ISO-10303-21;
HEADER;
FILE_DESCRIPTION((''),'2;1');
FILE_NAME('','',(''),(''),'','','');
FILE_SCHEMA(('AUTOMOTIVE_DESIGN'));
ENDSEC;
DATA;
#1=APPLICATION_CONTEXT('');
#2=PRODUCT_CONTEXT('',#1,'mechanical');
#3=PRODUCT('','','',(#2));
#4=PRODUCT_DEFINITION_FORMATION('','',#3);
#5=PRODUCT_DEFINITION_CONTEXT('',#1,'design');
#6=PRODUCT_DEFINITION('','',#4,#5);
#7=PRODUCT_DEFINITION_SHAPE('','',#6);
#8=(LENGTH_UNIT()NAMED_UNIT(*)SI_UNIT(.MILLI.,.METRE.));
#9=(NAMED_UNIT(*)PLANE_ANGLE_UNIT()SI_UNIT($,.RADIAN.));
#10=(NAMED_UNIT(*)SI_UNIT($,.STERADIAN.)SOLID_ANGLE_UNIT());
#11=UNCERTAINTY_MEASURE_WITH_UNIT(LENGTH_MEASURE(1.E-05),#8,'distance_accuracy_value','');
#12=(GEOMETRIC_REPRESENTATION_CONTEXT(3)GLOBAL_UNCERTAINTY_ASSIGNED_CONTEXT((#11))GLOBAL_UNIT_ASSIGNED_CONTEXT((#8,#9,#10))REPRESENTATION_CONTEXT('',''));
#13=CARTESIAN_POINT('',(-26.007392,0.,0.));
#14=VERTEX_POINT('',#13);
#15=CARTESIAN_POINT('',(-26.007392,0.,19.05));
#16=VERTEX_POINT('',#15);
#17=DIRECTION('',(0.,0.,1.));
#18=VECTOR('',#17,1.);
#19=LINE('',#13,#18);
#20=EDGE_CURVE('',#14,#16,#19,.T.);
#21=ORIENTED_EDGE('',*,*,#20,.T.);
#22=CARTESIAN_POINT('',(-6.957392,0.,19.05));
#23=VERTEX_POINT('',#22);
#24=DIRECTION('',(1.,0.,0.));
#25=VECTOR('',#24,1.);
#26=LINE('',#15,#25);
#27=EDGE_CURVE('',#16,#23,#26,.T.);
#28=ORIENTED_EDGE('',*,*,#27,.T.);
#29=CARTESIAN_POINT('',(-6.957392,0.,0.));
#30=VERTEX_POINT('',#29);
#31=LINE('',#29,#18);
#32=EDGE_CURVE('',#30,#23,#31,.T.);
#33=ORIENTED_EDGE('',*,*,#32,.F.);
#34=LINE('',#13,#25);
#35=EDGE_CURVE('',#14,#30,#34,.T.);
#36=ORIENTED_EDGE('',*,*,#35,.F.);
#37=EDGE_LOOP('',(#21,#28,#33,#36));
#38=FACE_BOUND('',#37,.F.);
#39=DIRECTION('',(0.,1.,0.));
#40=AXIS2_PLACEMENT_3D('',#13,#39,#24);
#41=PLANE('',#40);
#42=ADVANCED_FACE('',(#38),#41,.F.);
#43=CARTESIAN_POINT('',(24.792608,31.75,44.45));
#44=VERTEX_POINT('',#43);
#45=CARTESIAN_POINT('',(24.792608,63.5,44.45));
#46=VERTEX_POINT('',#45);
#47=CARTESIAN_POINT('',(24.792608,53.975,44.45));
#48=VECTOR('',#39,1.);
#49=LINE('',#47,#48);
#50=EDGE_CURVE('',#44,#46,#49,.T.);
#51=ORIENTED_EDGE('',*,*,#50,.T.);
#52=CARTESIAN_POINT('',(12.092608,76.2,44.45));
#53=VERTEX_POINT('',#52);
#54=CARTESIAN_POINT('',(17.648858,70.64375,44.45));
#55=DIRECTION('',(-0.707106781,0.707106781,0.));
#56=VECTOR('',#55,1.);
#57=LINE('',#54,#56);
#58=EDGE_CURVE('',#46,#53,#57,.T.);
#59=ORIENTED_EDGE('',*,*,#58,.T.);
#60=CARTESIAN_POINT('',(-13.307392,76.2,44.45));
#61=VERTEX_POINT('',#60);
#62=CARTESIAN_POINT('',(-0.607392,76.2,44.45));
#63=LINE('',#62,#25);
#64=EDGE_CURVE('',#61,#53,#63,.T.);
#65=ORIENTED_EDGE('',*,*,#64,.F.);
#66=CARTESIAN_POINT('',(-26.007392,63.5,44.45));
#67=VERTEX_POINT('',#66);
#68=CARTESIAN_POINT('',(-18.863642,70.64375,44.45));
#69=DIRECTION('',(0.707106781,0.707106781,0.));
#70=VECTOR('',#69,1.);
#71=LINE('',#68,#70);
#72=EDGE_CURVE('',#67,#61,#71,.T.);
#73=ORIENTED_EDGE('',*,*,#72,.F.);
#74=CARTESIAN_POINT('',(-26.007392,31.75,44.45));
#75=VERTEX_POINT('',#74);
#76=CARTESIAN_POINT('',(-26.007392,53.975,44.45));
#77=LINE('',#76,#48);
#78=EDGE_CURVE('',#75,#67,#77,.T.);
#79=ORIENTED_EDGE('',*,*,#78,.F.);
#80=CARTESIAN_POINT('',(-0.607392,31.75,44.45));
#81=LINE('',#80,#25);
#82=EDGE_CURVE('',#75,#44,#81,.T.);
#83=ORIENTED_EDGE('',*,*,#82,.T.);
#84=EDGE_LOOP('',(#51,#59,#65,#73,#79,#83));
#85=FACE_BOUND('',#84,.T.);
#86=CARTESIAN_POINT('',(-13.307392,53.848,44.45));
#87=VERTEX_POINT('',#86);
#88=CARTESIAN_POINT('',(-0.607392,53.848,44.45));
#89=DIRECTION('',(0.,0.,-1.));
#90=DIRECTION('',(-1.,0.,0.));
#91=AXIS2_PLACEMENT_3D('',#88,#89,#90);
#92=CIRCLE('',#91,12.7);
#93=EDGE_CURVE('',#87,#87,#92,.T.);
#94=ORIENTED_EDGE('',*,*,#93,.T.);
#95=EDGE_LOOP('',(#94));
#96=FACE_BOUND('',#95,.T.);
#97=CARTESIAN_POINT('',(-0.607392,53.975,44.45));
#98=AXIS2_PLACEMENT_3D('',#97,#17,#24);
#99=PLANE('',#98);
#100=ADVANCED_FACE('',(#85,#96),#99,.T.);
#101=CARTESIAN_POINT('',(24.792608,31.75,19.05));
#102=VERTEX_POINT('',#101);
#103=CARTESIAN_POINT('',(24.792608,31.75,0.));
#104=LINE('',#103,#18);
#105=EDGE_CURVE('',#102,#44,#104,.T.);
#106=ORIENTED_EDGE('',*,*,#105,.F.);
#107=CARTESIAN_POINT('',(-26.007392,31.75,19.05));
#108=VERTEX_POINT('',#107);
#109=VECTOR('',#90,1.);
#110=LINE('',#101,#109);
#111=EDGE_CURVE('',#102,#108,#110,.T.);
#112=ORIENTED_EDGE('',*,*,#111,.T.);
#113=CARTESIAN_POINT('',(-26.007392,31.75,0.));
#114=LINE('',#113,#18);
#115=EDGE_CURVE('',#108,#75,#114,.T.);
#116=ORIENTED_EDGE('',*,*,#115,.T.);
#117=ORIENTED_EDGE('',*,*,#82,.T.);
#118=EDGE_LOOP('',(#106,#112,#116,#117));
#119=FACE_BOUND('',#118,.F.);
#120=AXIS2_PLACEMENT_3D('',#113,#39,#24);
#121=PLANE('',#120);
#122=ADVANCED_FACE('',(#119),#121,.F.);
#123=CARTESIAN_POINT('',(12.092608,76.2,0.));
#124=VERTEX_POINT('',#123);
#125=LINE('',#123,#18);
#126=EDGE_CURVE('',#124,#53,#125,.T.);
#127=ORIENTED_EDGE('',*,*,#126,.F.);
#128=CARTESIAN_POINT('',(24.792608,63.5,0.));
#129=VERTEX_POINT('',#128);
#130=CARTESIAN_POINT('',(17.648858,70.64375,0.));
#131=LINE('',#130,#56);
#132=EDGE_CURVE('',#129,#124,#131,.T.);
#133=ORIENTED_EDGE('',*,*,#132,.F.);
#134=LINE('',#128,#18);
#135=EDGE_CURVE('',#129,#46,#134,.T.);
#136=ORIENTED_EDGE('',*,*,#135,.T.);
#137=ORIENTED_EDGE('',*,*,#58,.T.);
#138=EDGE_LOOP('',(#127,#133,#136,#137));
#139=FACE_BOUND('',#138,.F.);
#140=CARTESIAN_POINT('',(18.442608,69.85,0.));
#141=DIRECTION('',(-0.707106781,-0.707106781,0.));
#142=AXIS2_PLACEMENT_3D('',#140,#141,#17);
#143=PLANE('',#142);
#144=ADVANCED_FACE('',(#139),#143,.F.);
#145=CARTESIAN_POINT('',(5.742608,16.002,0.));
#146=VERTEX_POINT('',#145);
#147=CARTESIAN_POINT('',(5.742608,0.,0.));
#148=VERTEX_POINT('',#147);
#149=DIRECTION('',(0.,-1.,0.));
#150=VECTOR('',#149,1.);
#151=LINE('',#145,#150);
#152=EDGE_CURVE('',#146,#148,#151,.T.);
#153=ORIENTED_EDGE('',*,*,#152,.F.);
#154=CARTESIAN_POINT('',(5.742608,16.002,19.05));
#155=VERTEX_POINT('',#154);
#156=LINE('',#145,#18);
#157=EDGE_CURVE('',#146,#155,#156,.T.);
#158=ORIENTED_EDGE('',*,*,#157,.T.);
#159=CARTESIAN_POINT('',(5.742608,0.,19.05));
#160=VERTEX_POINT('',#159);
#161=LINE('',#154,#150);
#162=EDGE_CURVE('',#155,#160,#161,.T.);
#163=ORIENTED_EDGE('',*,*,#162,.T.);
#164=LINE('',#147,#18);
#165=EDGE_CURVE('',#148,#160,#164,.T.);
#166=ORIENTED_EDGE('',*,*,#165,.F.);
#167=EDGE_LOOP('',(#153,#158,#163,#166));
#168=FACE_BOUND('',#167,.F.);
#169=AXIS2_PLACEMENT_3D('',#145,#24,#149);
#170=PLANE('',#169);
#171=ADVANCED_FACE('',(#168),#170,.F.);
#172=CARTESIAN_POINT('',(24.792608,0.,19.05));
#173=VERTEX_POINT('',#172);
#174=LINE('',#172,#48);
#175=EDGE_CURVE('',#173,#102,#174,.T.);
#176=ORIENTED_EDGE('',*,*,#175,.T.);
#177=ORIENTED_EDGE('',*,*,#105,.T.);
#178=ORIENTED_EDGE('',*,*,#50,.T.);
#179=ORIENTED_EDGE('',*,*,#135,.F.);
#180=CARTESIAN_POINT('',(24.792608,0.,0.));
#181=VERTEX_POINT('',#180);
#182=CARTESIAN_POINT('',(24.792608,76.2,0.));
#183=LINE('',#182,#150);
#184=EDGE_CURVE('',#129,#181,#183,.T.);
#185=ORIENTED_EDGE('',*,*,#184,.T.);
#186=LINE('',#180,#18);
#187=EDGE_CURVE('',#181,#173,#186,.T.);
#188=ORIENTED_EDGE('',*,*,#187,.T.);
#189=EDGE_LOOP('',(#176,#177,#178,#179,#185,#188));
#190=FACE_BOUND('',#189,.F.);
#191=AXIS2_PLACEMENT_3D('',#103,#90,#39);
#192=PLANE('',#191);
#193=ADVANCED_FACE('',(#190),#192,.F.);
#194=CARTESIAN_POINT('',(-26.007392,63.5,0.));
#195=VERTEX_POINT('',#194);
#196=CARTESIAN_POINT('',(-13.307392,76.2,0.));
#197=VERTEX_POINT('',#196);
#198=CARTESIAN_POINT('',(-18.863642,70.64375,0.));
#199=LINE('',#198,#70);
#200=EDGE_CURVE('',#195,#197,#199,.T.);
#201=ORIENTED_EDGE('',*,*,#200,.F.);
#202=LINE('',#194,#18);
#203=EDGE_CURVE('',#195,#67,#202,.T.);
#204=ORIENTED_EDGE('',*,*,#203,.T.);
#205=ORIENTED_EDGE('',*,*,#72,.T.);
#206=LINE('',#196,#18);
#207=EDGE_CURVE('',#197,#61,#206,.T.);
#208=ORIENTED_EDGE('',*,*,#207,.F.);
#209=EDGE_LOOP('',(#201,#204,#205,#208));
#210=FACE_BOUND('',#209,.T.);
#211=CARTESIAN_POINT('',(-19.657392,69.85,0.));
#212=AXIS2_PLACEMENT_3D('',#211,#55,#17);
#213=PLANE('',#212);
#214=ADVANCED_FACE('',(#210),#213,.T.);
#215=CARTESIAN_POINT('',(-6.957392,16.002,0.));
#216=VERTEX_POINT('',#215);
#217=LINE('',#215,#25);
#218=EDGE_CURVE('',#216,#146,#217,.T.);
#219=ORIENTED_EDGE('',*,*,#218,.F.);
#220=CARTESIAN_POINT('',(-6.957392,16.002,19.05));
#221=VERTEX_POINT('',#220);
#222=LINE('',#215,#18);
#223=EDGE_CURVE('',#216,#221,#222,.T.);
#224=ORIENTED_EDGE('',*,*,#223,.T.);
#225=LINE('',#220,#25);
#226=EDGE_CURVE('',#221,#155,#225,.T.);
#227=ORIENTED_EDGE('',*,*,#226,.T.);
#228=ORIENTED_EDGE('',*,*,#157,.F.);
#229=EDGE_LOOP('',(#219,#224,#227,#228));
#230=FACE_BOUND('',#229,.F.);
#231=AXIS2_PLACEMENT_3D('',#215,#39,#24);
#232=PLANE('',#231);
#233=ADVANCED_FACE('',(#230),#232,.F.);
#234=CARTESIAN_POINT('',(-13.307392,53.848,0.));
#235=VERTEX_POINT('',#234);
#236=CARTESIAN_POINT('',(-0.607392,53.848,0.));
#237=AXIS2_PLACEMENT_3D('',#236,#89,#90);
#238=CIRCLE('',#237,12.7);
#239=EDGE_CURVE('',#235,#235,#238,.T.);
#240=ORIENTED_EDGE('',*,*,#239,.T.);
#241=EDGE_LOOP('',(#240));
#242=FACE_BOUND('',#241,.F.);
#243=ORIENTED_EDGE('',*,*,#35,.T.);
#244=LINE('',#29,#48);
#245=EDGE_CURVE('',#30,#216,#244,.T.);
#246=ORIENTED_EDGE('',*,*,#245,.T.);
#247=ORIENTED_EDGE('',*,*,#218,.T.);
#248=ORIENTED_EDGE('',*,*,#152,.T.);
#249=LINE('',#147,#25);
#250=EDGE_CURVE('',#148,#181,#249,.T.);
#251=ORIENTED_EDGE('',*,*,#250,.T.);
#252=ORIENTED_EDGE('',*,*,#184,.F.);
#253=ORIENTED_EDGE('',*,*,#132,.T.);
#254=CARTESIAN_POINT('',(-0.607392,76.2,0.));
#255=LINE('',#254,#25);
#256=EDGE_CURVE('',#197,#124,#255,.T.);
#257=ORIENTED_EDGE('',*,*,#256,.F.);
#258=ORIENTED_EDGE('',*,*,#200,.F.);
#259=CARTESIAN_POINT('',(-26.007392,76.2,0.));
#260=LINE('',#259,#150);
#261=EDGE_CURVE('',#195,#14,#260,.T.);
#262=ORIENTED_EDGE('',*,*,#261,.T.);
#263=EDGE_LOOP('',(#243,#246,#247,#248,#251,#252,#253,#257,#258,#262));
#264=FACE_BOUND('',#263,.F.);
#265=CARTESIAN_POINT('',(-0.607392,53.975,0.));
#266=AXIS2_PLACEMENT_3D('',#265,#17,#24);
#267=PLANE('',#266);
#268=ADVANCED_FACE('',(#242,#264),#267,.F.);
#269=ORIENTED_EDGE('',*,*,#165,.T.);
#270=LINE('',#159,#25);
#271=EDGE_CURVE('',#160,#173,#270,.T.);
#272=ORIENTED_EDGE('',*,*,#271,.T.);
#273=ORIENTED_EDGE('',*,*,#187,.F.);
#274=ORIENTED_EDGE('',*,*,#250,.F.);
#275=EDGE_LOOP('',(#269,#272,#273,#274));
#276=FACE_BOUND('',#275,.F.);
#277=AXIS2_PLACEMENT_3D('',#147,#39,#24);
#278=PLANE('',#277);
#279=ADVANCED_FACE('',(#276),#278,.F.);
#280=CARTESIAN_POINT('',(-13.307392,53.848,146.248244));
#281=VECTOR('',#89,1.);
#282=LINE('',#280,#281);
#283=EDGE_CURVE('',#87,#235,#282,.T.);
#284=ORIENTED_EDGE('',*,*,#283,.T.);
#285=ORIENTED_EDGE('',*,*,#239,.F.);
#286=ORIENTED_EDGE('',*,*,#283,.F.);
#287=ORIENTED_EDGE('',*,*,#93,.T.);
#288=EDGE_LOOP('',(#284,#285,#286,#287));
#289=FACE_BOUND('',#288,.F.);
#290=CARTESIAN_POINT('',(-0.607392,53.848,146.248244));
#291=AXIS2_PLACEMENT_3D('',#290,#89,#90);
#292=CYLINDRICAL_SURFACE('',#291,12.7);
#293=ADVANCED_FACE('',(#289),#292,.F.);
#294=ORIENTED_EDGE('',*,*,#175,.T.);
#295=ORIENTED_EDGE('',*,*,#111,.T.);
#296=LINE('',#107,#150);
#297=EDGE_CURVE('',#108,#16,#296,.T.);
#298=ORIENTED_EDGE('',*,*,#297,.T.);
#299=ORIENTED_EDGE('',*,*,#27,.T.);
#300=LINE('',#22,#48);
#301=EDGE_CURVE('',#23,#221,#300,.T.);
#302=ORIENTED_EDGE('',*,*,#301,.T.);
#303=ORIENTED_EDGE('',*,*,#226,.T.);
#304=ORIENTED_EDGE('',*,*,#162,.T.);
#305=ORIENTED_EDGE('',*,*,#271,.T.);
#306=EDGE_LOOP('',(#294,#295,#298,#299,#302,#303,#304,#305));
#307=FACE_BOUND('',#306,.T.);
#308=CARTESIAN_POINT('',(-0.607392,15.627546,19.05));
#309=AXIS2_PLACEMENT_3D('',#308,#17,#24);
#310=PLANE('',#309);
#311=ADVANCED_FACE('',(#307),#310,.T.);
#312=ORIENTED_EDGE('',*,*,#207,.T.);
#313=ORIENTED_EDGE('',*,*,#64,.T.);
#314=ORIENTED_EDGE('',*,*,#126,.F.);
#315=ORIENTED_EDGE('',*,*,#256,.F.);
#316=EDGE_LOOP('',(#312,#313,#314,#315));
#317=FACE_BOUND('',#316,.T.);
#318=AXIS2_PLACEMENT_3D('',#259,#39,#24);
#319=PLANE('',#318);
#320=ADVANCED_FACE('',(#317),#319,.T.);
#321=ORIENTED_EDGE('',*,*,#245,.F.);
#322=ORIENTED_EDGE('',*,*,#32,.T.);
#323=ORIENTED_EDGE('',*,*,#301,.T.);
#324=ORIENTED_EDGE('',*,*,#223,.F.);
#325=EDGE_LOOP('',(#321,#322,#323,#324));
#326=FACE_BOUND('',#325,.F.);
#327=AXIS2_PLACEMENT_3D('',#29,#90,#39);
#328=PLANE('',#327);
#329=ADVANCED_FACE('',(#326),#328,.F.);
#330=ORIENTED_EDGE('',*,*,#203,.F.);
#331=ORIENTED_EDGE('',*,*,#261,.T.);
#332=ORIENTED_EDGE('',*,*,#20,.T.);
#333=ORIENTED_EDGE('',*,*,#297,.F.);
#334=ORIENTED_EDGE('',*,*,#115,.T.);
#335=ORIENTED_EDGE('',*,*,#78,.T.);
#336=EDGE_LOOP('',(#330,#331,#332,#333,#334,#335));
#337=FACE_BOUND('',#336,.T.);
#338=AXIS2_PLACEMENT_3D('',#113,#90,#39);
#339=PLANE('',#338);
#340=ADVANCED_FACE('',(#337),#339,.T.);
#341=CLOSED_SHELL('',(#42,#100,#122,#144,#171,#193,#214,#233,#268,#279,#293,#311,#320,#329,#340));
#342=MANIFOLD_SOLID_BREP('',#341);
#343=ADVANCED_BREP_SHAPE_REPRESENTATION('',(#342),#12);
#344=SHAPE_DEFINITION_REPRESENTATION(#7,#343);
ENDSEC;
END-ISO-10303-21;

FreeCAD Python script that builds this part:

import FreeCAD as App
import Part
import Sketcher

V = App.Vector
Q = App.Units.Quantity


def edges_at(feature, points):
    """Names of the edges that pass closest to the given points."""
    edges = feature.Shape.Edges
    near = lambda p: min(range(len(edges)), key=lambda i: edges[i].distToShape(Part.Vertex(*p))[0])
    return sorted({f"Edge{near(p) + 1}" for p in points})


def add_polygon(sketch, points):
    """Adds a closed chain of lines whose ends are joined by coincident constraints."""
    first, n = sketch.GeometryCount, len(points)
    for a, b in zip(points, points[1:] + points[:1]):
        sketch.addGeometry(Part.LineSegment(App.Vector(*a, 0), App.Vector(*b, 0)), False)
    for i in range(n):
        sketch.addConstraint(Sketcher.Constraint("Coincident", first + i, 2, first + (i + 1) % n, 1))

doc = App.newDocument("Part")
body = doc.addObject("PartDesign::Body", "Body")

sketch1 = doc.addObject("Sketcher::SketchObject", "Sketch")
body.addObject(sketch1)
sketch1.AttachmentSupport = (doc.XY_Plane, [""])
sketch1.MapMode = "FlatFace"
add_polygon(sketch1, [(-26.007392, 0), (-6.957392, 0), (-6.957392, 16.002), (5.742608, 16.002), (5.742608, 0), (24.792608, 0), (24.792608, 31.75), (-26.007392, 31.75)])
sketch1.addConstraint(Sketcher.Constraint("Horizontal", 0))
sketch1.addConstraint(Sketcher.Constraint("Vertical", 1))
sketch1.addConstraint(Sketcher.Constraint("Horizontal", 2))
sketch1.addConstraint(Sketcher.Constraint("Vertical", 3))
sketch1.addConstraint(Sketcher.Constraint("Horizontal", 4))
sketch1.addConstraint(Sketcher.Constraint("Vertical", 5))
sketch1.addConstraint(Sketcher.Constraint("Horizontal", 6))
sketch1.addConstraint(Sketcher.Constraint("Vertical", 7))
sketch1.addConstraint(Sketcher.Constraint("PointOnObject", 0, 2, -1))
sketch1.addConstraint(Sketcher.Constraint("PointOnObject", 3, 2, -1))
sketch1.addConstraint(Sketcher.Constraint("Equal", 0, 4))
sketch1.addConstraint(Sketcher.Constraint("DistanceX", 6, 2, 6, 1, Q("2 in")))
sketch1.addConstraint(Sketcher.Constraint("DistanceX", 2, 1, 2, 2, Q("0.5 in")))
sketch1.addConstraint(Sketcher.Constraint("DistanceY", 1, 1, 1, 2, Q("0.63 in")))
sketch1.addConstraint(Sketcher.Constraint("DistanceY", 5, 1, 5, 2, Q("1.25 in")))
sketch1.addConstraint(Sketcher.Constraint("DistanceX", 0, 2, -1, 1, Q("6.957392 mm")))
pad1 = doc.addObject("PartDesign::Pad", "Pad")
body.addObject(pad1)
pad1.Profile = sketch1
pad1.Length = Q("0.75 in")

sketch2 = doc.addObject("Sketcher::SketchObject", "Sketch001")
body.addObject(sketch2)
sketch2.AttachmentSupport = (doc.XY_Plane, [""])
sketch2.MapMode = "FlatFace"
add_polygon(sketch2, [(-26.007392, 76.2), (-26.007392, 31.75), (24.792608, 31.75), (24.792608, 76.2)])
sketch2.addConstraint(Sketcher.Constraint("Vertical", 0))
sketch2.addConstraint(Sketcher.Constraint("Horizontal", 1))
sketch2.addConstraint(Sketcher.Constraint("Vertical", 2))
sketch2.addConstraint(Sketcher.Constraint("Horizontal", 3))
sketch2.addConstraint(Sketcher.Constraint("DistanceX", 1, 1, 1, 2, Q("2 in")))
sketch2.addConstraint(Sketcher.Constraint("DistanceY", -1, 1, 2, 2, Q("3 in")))
sketch2.addConstraint(Sketcher.Constraint("DistanceY", 0, 2, 0, 1, Q("1.75 in")))
sketch2.addConstraint(Sketcher.Constraint("DistanceX", 0, 2, -1, 1, Q("26.007392 mm")))
pad2 = doc.addObject("PartDesign::Pad", "Pad001")
body.addObject(pad2)
pad2.Profile = sketch2
pad2.Length = Q("1.75 in")
doc.recompute()

chamfer = doc.addObject("PartDesign::Chamfer", "Chamfer")
body.addObject(chamfer)
chamfer.Base = (pad2, edges_at(pad2, [(24.793, 76.2, 22.225), (-26.007, 76.2, 22.225)]))
chamfer.Size = Q("0.5 in")

sketch3 = doc.addObject("Sketcher::SketchObject", "Sketch002")
body.addObject(sketch3)
sketch3.AttachmentSupport = (doc.XY_Plane, [""])
sketch3.MapMode = "FlatFace"
sketch3.AttachmentOffset = App.Placement(V(0, 0, 1.75 * 25.4), App.Rotation())
sketch3.addGeometry(Part.Circle(V(-0.607392, 53.848, 0), V(0, 0, 1), 12.7), False)
sketch3.addConstraint(Sketcher.Constraint("Diameter", 0, Q("1 in")))
sketch3.addConstraint(Sketcher.Constraint("DistanceY", -1, 1, 0, 3, Q("2.12 in")))
sketch3.addConstraint(Sketcher.Constraint("DistanceX", 0, 3, -1, 1, Q("0.607392 mm")))
doc.recompute()
hole = doc.addObject("PartDesign::Hole", "Hole")
body.addObject(hole)
hole.Profile = sketch3
hole.ThreadType = "None"
hole.Diameter = Q("1 in")
hole.DepthType = "ThroughAll"

doc.recompute()
